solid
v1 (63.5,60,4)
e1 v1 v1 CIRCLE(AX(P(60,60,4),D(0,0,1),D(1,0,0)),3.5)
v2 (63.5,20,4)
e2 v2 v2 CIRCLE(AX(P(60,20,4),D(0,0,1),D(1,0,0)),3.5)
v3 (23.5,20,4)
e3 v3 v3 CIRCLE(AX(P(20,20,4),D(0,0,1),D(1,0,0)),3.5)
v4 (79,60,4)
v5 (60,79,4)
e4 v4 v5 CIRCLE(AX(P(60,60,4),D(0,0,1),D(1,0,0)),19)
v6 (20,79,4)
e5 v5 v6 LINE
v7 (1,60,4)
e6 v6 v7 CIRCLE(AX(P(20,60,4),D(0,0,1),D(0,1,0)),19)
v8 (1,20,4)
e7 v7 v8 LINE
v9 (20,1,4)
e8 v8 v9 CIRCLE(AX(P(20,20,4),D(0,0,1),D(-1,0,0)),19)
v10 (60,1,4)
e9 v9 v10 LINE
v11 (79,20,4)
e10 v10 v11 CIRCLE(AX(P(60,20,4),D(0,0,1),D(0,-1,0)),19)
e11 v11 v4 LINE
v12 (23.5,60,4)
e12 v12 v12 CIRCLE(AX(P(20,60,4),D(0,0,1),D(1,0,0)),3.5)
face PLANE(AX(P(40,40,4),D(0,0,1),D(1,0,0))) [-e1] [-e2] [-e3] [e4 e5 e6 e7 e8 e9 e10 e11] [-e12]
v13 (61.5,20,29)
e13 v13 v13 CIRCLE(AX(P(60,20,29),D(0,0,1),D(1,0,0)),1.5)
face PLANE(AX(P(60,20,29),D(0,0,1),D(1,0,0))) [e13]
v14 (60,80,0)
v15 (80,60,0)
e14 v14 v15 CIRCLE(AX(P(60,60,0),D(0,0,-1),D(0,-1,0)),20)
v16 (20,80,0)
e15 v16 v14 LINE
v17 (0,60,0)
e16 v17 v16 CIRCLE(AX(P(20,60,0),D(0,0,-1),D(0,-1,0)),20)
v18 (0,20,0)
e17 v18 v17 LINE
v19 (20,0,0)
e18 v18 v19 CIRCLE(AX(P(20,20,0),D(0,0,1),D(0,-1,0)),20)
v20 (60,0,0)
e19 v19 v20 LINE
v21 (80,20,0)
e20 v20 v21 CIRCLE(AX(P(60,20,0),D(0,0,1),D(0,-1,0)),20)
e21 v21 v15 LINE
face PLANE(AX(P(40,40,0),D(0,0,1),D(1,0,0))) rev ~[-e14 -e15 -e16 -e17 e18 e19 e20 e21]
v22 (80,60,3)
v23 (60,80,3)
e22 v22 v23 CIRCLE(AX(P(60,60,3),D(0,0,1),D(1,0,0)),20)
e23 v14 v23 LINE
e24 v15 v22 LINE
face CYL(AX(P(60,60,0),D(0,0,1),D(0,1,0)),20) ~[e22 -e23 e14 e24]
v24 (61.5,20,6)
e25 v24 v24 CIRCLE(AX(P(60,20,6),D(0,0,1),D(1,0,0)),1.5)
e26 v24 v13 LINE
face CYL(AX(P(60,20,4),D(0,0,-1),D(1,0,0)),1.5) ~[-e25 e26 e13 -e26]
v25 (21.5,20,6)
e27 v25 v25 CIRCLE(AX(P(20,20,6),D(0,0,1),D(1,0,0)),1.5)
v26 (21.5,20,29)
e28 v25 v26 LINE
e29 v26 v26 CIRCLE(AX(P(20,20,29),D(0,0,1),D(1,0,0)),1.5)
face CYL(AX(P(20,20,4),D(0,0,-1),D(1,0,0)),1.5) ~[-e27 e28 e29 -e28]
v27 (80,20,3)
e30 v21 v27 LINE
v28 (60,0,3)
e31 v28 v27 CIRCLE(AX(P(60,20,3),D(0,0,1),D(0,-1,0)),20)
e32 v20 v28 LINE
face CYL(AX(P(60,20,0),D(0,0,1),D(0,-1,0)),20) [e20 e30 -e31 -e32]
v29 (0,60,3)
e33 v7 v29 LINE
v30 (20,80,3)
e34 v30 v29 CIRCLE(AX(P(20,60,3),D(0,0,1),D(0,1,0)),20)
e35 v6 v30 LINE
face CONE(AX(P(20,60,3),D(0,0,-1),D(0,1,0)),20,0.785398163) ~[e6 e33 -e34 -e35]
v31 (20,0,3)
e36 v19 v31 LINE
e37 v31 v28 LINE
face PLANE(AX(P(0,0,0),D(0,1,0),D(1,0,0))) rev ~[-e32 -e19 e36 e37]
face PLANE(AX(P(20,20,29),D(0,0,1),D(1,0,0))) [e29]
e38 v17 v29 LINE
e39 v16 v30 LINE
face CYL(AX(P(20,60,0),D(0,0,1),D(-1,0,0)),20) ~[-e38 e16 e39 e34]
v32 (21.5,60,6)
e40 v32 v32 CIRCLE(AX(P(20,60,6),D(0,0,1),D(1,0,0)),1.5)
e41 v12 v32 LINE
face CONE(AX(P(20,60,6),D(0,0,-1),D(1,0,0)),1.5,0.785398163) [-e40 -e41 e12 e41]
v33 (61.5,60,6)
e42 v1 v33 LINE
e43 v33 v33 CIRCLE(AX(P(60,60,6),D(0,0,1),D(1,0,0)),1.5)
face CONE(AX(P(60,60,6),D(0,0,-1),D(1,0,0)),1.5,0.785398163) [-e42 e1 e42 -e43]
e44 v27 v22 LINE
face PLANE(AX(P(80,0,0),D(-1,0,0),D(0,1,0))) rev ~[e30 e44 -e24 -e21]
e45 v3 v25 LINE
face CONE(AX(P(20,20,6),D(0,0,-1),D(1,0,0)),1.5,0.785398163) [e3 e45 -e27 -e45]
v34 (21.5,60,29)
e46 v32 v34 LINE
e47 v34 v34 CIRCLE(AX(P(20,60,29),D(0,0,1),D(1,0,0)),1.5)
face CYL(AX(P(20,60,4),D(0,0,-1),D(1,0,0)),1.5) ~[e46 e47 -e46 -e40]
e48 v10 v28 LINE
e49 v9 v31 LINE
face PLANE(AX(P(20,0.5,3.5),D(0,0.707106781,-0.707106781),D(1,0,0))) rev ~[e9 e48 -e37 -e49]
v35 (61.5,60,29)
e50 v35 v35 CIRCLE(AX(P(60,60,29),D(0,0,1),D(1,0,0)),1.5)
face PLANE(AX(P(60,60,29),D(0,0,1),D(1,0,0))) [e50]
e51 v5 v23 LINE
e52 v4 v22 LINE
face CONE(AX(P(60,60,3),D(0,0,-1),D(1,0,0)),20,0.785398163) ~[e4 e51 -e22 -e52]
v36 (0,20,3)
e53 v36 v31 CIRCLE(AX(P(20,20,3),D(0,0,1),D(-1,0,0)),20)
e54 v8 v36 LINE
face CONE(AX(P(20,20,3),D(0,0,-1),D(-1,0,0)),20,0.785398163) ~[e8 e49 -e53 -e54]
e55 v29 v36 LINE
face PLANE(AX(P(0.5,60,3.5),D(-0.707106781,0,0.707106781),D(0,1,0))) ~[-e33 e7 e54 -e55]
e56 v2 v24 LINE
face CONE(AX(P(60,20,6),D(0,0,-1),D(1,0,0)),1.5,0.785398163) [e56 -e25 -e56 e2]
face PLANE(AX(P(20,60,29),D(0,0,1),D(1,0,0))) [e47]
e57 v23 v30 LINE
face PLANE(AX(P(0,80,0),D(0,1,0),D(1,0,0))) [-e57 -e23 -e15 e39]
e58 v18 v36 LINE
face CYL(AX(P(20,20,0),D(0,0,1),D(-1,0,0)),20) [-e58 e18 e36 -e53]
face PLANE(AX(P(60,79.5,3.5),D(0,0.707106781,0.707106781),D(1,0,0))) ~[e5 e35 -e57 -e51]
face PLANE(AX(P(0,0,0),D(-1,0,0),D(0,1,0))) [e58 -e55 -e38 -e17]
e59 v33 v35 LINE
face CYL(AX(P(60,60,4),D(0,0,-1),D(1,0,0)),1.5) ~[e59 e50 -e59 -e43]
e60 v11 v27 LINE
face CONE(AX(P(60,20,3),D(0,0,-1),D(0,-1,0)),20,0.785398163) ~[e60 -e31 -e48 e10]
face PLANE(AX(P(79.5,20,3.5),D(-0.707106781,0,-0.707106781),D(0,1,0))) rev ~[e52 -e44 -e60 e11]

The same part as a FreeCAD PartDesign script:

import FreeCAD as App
import Part
import Sketcher


def edges_at(feature, points):
    """Names of the edges that pass closest to the given points."""
    edges = feature.Shape.Edges
    near = lambda p: min(range(len(edges)), key=lambda i: edges[i].distToShape(Part.Vertex(*p))[0])
    return sorted({f"Edge{near(p) + 1}" for p in points})


def add_polygon(sketch, points):
    """Adds a closed chain of lines whose ends are joined by coincident constraints."""
    first, n = sketch.GeometryCount, len(points)
    for a, b in zip(points, points[1:] + points[:1]):
        sketch.addGeometry(Part.LineSegment(App.Vector(*a, 0), App.Vector(*b, 0)), False)
    for i in range(n):
        sketch.addConstraint(Sketcher.Constraint("Coincident", first + i, 2, first + (i + 1) % n, 1))

doc = App.newDocument("Part")
body = doc.addObject("PartDesign::Body", "Body")

# Sketch on XY plane
sketch1 = body.newObject("Sketcher::SketchObject", "Sketch")
sketch1.AttachmentSupport = (doc.getObject("XY_Plane"), [""])
sketch1.MapMode = "FlatFace"
add_polygon(sketch1, [(0, 80), (0, 0), (80, 0), (80, 80)])  # lines 0-3
sketch1.addConstraint([
    Sketcher.Constraint("Vertical", 0),
    Sketcher.Constraint("Horizontal", 1),
    Sketcher.Constraint("Vertical", 2),
    Sketcher.Constraint("Horizontal", 3),
    Sketcher.Constraint("Coincident", 0, 2, -1, 1),
    Sketcher.Constraint("Equal", 3, 0),
    Sketcher.Constraint("DistanceX", 1, 1, 1, 2, 80.0),
])
pad1 = body.newObject("PartDesign::Pad", "Pad")
pad1.Profile = sketch1
pad1.Length = 4

# Sketch on XY plane
sketch2 = body.newObject("Sketcher::SketchObject", "Sketch001")
sketch2.AttachmentSupport = (doc.getObject("XY_Plane"), [""])
sketch2.MapMode = "FlatFace"
sketch2.AttachmentOffset = App.Placement(App.Vector(0, 0, 4), App.Rotation())
sketch2.addGeometry([
    Part.Circle(App.Vector(20, 60, 0), App.Vector(0, 0, 1), 1.5),
    Part.Circle(App.Vector(20, 20, 0), App.Vector(0, 0, 1), 1.5),
    Part.Circle(App.Vector(60, 60, 0), App.Vector(0, 0, 1), 1.5),
    Part.Circle(App.Vector(60, 20, 0), App.Vector(0, 0, 1), 1.5),
], False)
sketch2.addConstraint([
    Sketcher.Constraint("Equal", 0, 1),
    Sketcher.Constraint("Equal", 1, 2),
    Sketcher.Constraint("Equal", 2, 3),
    Sketcher.Constraint("Horizontal", 0, 3, 2, 3),
    Sketcher.Constraint("Horizontal", 1, 3, 3, 3),
    Sketcher.Constraint("Vertical", 0, 3, 1, 3),
    Sketcher.Constraint("Vertical", 2, 3, 3, 3),
    Sketcher.Constraint("Diameter", 0, 3.0),
    Sketcher.Constraint("DistanceX", -1, 1, 0, 3, 20.0),
    Sketcher.Constraint("DistanceY", -1, 1, 0, 3, 60.0),
    Sketcher.Constraint("DistanceY", -1, 1, 1, 3, 20.0),
    Sketcher.Constraint("DistanceX", -1, 1, 2, 3, 60.0),
])
pad2 = body.newObject("PartDesign::Pad", "Pad001")
pad2.Profile = sketch2
pad2.Length = 25
doc.recompute()

fillet = body.newObject("PartDesign::Fillet", "Fillet")
fillet.Base = (pad2, edges_at(pad2, [
    (80, 80, 2),
    (80, 0, 2),
    (0, 0, 2),
    (0, 80, 2),
]))
fillet.Radius = 20
doc.recompute()

chamfer = body.newObject("PartDesign::Chamfer", "Chamfer")
chamfer.Base = (fillet, edges_at(fillet, [
    (58.5, 20, 4),
    (58.5, 60, 4),
    (18.5, 20, 4),
    (18.5, 60, 4),
]))
chamfer.Size = 2
doc.recompute()

chamfer2 = body.newObject("PartDesign::Chamfer", "Chamfer001")
chamfer2.Base = (chamfer, edges_at(chamfer, [
    (40, 0, 4),
    (74.142, 5.858, 4),
    (80, 40, 4),
    (74.142, 74.142, 4),
    (40, 80, 4),
    (5.858, 74.142, 4),
    (0, 40, 4),
    (5.858, 5.858, 4),
]))
chamfer2.Size = 1

doc.recompute()
